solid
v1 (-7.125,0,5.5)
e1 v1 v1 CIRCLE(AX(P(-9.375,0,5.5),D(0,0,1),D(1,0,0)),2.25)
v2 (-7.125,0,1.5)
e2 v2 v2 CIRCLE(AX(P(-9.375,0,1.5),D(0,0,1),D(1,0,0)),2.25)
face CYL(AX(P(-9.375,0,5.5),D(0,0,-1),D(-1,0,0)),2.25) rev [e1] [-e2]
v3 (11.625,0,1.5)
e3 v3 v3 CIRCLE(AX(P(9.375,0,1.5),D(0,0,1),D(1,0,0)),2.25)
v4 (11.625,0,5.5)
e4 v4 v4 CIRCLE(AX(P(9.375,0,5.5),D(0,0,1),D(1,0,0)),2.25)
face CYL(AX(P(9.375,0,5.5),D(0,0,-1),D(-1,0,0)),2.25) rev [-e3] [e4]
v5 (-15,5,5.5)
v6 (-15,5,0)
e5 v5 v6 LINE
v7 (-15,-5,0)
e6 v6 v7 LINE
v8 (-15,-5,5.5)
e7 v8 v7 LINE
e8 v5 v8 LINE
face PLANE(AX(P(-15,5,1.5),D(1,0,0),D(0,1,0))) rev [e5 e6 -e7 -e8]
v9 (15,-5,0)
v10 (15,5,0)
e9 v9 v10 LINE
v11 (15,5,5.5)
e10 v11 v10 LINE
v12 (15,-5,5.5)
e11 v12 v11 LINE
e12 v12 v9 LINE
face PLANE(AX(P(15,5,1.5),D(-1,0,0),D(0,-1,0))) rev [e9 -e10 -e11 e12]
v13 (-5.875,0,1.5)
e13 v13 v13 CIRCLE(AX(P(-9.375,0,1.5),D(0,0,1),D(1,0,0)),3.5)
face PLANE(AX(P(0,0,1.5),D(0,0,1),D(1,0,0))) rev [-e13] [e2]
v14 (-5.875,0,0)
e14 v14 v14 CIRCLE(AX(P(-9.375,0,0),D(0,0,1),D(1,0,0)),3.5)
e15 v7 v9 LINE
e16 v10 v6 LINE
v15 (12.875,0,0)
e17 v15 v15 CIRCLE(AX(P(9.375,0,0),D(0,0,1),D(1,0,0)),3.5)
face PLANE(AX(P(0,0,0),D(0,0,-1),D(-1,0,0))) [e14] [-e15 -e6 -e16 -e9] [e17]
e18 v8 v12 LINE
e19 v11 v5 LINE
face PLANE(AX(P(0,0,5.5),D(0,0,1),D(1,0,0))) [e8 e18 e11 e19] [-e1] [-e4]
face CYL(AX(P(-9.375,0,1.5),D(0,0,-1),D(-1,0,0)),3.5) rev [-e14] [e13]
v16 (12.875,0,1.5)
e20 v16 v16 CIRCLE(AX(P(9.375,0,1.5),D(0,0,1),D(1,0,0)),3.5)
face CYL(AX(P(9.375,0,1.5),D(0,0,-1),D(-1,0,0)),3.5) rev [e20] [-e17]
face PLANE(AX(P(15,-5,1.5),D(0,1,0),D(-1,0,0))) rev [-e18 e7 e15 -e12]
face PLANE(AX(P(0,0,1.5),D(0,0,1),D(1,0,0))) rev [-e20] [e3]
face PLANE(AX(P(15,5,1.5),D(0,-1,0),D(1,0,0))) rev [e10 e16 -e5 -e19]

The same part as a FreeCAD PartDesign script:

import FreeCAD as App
import Part
import Sketcher
from FreeCAD import Vector
Q = App.Units.Quantity


def add_polygon(sketch, points):
    """Adds a closed chain of lines whose ends are joined by coincident constraints."""
    first, n = sketch.GeometryCount, len(points)
    for a, b in zip(points, points[1:] + points[:1]):
        sketch.addGeometry(Part.LineSegment(App.Vector(*a, 0), App.Vector(*b, 0)), False)
    for i in range(n):
        sketch.addConstraint(Sketcher.Constraint("Coincident", first + i, 2, first + (i + 1) % n, 1))

doc = App.newDocument("Part")
body = doc.addObject("PartDesign::Body", "Body")

# Sketch on XY plane
sketch1 = body.newObject("Sketcher::SketchObject", "Sketch")
sketch1.AttachmentSupport = (doc.getObject("XY_Plane"), [""])
sketch1.MapMode = "FlatFace"
add_polygon(sketch1, [(-15, 5), (-15, -5), (15, -5), (15, 5)])  # lines 0-3
sketch1.addGeometry(Part.Circle(Vector(-9.375, 0, 0), Vector(0, 0, 1), 3.5), False)  # 4
sketch1.addGeometry(Part.Circle(Vector(9.375, 0, 0), Vector(0, 0, 1), 3.5), False)  # 5
sketch1.addConstraint([
    Sketcher.Constraint("Vertical", 0),
    Sketcher.Constraint("Horizontal", 1),
    Sketcher.Constraint("Vertical", 2),
    Sketcher.Constraint("Horizontal", 3),
    Sketcher.Constraint("Equal", 4, 5),
    Sketcher.Constraint("Symmetric", 4, 3, 5, 3, -1, 1),
    Sketcher.Constraint("Symmetric", 0, 2, 2, 2, -1, 1),
    Sketcher.Constraint("PointOnObject", 4, 3, -1),
    Sketcher.Constraint("Diameter", 4, Q("7 mm")),
    Sketcher.Constraint("DistanceX", 1, 1, 1, 2, Q("30 mm")),
    Sketcher.Constraint("DistanceY", 0, 2, 0, 1, Q("10 mm")),
    Sketcher.Constraint("DistanceX", 4, 3, 5, 3, Q("18.75 mm")),
])
pad1 = body.newObject("PartDesign::Pad", "Pad")
pad1.Profile = sketch1
pad1.Length = 1.5

# Sketch on XY plane
sketch2 = body.newObject("Sketcher::SketchObject", "Sketch001")
sketch2.AttachmentSupport = (doc.getObject("XY_Plane"), [""])
sketch2.MapMode = "FlatFace"
sketch2.AttachmentOffset = App.Placement(Vector(0, 0, 1.5), App.Rotation())
add_polygon(sketch2, [(-15, 5), (-15, -5), (15, -5), (15, 5)])  # lines 0-3
sketch2.addGeometry(Part.Circle(Vector(-9.375, 0, 0), Vector(0, 0, 1), 2.25), False)  # 4
sketch2.addGeometry(Part.Circle(Vector(9.375, 0, 0), Vector(0, 0, 1), 2.25), False)  # 5
sketch2.addConstraint([
    Sketcher.Constraint("Vertical", 0),
    Sketcher.Constraint("Horizontal", 1),
    Sketcher.Constraint("Vertical", 2),
    Sketcher.Constraint("Horizontal", 3),
    Sketcher.Constraint("Equal", 4, 5),
    Sketcher.Constraint("Symmetric", 4, 3, 5, 3, -1, 1),
    Sketcher.Constraint("Symmetric", 0, 2, 2, 2, -1, 1),
    Sketcher.Constraint("PointOnObject", 4, 3, -1),
    Sketcher.Constraint("Diameter", 4, Q("4.5 mm")),
    Sketcher.Constraint("DistanceX", 1, 1, 1, 2, Q("30 mm")),
    Sketcher.Constraint("DistanceY", 0, 2, 0, 1, Q("10 mm")),
    Sketcher.Constraint("DistanceX", 4, 3, 5, 3, Q("18.75 mm")),
])
pad2 = body.newObject("PartDesign::Pad", "Pad001")
pad2.Profile = sketch2
pad2.Length = 4

doc.recompute()
